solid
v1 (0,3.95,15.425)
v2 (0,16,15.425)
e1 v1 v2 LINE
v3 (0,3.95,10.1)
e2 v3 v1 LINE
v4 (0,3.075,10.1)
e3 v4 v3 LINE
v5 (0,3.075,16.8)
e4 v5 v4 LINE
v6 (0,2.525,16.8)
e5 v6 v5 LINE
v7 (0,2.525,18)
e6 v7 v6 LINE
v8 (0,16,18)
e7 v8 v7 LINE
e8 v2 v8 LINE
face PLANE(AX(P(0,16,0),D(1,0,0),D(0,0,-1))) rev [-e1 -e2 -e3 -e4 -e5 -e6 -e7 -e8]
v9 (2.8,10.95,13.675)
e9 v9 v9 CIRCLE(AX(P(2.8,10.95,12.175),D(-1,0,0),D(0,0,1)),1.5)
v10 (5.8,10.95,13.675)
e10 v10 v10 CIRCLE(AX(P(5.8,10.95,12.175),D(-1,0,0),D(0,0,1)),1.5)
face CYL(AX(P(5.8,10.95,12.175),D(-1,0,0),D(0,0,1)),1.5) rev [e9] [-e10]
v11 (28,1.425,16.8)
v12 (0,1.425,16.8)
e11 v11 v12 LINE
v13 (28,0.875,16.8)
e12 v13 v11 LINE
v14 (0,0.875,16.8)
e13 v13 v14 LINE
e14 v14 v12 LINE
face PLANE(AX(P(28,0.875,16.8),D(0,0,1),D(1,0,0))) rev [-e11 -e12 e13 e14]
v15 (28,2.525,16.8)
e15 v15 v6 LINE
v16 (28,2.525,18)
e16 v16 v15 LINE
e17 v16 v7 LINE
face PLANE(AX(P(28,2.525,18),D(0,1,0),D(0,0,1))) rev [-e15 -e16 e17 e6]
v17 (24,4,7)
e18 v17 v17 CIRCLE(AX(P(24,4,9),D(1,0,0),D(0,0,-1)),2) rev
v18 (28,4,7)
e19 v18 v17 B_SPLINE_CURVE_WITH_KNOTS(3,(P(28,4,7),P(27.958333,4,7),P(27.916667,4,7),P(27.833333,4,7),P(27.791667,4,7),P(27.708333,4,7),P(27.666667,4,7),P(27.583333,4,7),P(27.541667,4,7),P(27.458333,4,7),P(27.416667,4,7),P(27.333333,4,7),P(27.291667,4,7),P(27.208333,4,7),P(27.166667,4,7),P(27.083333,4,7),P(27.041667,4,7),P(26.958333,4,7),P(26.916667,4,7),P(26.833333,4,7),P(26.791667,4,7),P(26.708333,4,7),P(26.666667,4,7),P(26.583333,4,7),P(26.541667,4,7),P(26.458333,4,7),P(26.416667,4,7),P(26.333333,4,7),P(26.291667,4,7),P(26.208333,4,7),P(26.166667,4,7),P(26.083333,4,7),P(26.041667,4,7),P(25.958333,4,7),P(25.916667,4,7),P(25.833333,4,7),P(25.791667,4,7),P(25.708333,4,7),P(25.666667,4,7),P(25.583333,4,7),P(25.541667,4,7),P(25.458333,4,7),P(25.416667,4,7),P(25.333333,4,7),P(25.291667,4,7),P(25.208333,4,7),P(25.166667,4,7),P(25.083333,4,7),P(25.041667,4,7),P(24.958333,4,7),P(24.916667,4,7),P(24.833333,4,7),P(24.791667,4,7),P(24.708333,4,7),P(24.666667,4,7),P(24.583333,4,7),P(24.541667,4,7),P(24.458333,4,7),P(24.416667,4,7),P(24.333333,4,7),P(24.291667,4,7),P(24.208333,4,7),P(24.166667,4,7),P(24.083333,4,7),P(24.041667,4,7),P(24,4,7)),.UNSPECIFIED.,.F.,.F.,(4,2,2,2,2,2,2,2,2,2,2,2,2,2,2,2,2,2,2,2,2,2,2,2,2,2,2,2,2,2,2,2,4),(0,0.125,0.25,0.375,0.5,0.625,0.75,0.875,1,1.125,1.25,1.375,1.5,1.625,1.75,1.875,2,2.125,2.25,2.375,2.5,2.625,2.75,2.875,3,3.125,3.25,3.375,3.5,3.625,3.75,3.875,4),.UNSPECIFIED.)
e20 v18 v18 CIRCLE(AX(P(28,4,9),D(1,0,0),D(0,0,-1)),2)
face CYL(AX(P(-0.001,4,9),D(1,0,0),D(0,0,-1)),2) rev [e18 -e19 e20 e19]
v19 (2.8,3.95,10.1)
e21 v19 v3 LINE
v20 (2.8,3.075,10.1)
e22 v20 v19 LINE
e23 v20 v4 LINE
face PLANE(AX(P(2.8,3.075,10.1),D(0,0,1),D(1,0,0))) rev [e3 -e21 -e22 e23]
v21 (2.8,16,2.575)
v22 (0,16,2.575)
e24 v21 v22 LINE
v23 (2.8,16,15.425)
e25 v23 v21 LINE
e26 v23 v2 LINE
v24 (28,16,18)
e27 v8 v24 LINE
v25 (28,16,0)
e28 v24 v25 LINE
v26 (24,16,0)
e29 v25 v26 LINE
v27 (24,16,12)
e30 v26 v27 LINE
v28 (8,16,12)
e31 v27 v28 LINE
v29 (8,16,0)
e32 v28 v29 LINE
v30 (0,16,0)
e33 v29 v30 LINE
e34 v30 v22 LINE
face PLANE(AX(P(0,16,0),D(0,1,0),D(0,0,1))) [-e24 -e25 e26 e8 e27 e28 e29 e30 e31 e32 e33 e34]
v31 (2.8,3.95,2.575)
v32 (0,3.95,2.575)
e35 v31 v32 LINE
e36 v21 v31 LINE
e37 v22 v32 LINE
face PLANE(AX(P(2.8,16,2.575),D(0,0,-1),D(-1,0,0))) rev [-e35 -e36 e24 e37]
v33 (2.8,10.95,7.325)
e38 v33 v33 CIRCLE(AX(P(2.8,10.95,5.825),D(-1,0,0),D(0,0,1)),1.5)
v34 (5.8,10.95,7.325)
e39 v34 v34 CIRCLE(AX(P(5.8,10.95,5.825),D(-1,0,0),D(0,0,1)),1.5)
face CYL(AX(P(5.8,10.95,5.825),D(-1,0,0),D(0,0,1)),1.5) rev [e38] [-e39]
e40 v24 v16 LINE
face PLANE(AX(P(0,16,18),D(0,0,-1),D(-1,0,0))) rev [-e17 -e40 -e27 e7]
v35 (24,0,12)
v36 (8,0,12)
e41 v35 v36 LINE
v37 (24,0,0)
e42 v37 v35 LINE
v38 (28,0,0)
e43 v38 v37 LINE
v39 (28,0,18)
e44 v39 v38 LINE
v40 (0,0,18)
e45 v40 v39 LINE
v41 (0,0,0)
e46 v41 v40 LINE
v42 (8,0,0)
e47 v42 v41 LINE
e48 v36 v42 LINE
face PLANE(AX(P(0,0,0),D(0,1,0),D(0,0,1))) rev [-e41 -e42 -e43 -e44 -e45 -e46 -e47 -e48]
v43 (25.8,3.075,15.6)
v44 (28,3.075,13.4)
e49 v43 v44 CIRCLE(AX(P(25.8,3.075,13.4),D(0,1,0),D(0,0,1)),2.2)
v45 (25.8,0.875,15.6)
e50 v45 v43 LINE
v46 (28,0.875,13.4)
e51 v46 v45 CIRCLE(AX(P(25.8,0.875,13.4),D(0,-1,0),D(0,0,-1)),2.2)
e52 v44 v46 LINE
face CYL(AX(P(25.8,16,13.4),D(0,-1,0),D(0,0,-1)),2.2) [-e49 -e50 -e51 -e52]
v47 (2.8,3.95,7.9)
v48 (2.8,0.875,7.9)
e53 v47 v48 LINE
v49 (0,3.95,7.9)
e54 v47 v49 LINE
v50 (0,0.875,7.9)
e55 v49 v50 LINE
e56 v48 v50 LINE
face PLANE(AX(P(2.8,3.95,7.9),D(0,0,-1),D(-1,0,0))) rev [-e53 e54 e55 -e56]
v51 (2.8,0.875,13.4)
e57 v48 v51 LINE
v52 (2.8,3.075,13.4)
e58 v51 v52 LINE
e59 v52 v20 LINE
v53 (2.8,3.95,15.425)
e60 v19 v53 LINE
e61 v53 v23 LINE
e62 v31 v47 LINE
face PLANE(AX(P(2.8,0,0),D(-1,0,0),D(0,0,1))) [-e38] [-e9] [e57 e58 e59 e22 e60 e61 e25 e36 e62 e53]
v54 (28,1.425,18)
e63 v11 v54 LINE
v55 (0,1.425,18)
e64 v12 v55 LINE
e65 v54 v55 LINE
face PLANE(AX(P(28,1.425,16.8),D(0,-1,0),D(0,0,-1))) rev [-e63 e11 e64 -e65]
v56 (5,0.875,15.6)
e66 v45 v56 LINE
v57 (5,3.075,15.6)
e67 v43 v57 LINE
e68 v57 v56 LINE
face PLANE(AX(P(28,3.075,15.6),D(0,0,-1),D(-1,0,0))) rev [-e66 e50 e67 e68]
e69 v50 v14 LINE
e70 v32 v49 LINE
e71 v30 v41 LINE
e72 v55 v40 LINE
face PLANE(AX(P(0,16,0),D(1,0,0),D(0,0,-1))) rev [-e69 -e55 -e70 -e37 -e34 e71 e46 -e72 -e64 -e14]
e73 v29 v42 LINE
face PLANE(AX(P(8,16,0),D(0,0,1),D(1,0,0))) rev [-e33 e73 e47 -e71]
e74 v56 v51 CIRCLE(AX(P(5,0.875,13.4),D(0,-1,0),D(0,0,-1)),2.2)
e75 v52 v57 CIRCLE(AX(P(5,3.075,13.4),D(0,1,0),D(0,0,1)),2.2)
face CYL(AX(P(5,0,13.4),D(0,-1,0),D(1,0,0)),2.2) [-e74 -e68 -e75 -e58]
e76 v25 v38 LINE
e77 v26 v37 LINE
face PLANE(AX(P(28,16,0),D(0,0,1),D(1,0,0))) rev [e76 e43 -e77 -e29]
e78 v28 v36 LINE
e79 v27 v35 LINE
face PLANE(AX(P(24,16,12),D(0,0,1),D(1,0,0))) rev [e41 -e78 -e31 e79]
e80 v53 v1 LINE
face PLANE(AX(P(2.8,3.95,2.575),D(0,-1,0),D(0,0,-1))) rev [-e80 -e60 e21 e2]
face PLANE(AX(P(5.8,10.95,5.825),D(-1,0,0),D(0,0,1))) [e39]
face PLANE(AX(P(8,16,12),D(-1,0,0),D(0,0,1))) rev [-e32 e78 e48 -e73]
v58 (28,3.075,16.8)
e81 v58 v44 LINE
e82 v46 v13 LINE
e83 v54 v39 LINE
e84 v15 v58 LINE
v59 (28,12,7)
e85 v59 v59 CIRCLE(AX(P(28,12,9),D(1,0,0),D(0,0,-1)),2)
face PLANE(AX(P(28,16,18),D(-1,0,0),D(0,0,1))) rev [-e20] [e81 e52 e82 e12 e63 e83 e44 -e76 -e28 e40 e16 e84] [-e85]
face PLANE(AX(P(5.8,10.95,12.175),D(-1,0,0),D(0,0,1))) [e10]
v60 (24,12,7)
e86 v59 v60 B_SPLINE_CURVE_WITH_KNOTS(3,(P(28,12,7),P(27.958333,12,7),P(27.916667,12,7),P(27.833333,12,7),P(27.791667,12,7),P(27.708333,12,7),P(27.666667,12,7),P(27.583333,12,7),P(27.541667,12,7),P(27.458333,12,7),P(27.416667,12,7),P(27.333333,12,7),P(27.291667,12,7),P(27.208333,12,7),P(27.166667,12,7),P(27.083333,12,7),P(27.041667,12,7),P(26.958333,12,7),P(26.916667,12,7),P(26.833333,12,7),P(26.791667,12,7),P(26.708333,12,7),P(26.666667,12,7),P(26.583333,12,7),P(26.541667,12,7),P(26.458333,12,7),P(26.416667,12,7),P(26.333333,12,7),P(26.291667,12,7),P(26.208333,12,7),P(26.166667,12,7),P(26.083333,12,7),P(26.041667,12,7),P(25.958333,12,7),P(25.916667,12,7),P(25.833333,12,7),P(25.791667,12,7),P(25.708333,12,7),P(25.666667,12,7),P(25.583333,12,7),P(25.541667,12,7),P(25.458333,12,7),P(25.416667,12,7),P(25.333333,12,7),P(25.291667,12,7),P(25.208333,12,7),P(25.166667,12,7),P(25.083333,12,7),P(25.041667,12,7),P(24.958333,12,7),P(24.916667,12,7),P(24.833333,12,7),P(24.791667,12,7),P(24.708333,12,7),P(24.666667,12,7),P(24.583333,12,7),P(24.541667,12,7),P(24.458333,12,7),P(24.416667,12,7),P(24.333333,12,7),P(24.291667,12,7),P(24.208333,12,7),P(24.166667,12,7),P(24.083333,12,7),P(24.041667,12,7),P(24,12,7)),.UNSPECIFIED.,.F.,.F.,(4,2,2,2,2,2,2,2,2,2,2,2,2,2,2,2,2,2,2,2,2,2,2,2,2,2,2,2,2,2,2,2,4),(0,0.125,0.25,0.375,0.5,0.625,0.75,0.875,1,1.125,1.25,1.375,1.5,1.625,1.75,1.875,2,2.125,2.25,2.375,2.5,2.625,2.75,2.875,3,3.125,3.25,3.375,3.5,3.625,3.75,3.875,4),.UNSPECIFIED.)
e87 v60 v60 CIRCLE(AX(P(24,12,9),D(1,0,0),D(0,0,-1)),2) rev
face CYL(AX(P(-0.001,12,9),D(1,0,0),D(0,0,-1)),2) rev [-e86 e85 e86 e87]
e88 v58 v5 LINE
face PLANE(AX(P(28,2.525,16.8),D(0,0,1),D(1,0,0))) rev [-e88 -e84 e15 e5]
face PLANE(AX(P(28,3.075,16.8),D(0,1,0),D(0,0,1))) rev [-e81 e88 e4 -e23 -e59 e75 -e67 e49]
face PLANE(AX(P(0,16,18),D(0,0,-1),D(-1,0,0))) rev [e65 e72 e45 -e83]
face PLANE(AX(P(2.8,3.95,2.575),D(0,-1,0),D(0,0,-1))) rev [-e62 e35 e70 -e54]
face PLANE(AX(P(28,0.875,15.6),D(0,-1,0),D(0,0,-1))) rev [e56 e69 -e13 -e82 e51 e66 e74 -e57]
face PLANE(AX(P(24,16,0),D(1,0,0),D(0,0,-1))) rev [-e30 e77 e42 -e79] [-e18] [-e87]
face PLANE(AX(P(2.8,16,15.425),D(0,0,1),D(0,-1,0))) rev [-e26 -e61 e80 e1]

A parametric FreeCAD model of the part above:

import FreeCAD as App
import Part
import Sketcher


def edges_at(feature, points):
    """Names of the edges that pass closest to the given points."""
    edges = feature.Shape.Edges
    near = lambda p: min(range(len(edges)), key=lambda i: edges[i].distToShape(Part.Vertex(*p))[0])
    return sorted({f"Edge{near(p) + 1}" for p in points})

doc = App.newDocument("Part")
body = doc.addObject("PartDesign::Body", "Body")

sketch1 = doc.addObject("Sketcher::SketchObject", "Sketch")
body.addObject(sketch1)
sketch1.AttachmentSupport = (doc.XZ_Plane, [""])
sketch1.MapMode = "FlatFace"
sketch1.addGeometry([
    Part.LineSegment(App.Vector(0, 0, 0), App.Vector(0, 18, 0)),
    Part.LineSegment(App.Vector(0, 18, 0), App.Vector(28, 18, 0)),
    Part.LineSegment(App.Vector(28, 18, 0), App.Vector(28, 0, 0)),
    Part.LineSegment(App.Vector(28, 0, 0), App.Vector(24, 0, 0)),
    Part.LineSegment(App.Vector(24, 0, 0), App.Vector(24, 12, 0)),
    Part.LineSegment(App.Vector(24, 12, 0), App.Vector(8, 12, 0)),
    Part.LineSegment(App.Vector(8, 12, 0), App.Vector(8, 0, 0)),
    Part.LineSegment(App.Vector(8, 0, 0), App.Vector(0, 0, 0)),
], False)
sketch1.addConstraint([
    Sketcher.Constraint("Coincident", 0, 2, 1, 1),
    Sketcher.Constraint("Coincident", 1, 2, 2, 1),
    Sketcher.Constraint("Coincident", 2, 2, 3, 1),
    Sketcher.Constraint("Coincident", 3, 2, 4, 1),
    Sketcher.Constraint("Coincident", 4, 2, 5, 1),
    Sketcher.Constraint("Coincident", 5, 2, 6, 1),
    Sketcher.Constraint("Coincident", 6, 2, 7, 1),
    Sketcher.Constraint("Coincident", 7, 2, 0, 1),
    Sketcher.Constraint("Vertical", 0),
    Sketcher.Constraint("Horizontal", 1),
    Sketcher.Constraint("Vertical", 2),
    Sketcher.Constraint("Horizontal", 3),
    Sketcher.Constraint("Vertical", 4),
    Sketcher.Constraint("Horizontal", 5),
    Sketcher.Constraint("Vertical", 6),
    Sketcher.Constraint("Horizontal", 7),
    Sketcher.Constraint("Coincident", 7, 2, -1, 1),
    Sketcher.Constraint("PointOnObject", 2, 2, -1),
    Sketcher.Constraint("DistanceX", 1, 1, 1, 2, 28.0),
    Sketcher.Constraint("DistanceX", 3, 2, 3, 1, 4.0),
    Sketcher.Constraint("DistanceX", 5, 2, 5, 1, 16.0),
    Sketcher.Constraint("DistanceY", 0, 1, 0, 2, 18.0),
    Sketcher.Constraint("DistanceY", 4, 1, 4, 2, 12.0),
])
pad1 = doc.addObject("PartDesign::Pad", "Pad")
body.addObject(pad1)
pad1.Profile = sketch1
pad1.Length = 16
pad1.Reversed = True

sketch2 = doc.addObject("Sketcher::SketchObject", "Sketch001")
body.addObject(sketch2)
sketch2.AttachmentSupport = (doc.YZ_Plane, [""])
sketch2.MapMode = "FlatFace"
sketch2.addGeometry([
    Part.LineSegment(App.Vector(16, 3, 0), App.Vector(4, 3, 0)),
    Part.LineSegment(App.Vector(4, 3, 0), App.Vector(4, 15, 0)),
    Part.LineSegment(App.Vector(4, 15, 0), App.Vector(16, 15, 0)),
    Part.LineSegment(App.Vector(16, 15, 0), App.Vector(16, 3, 0)),
], False)
sketch2.addConstraint([
    Sketcher.Constraint("Coincident", 0, 2, 1, 1),
    Sketcher.Constraint("Coincident", 1, 2, 2, 1),
    Sketcher.Constraint("Coincident", 2, 2, 3, 1),
    Sketcher.Constraint("Coincident", 3, 2, 0, 1),
    Sketcher.Constraint("Horizontal", 0),
    Sketcher.Constraint("Vertical", 1),
    Sketcher.Constraint("Horizontal", 2),
    Sketcher.Constraint("Vertical", 3),
    Sketcher.Constraint("DistanceX", -1, 1, 2, 2, 16.0),
    Sketcher.Constraint("DistanceX", 0, 2, 0, 1, 12.05),
    Sketcher.Constraint("DistanceY", 1, 1, 1, 2, 12.85),
    Sketcher.Constraint("DistanceY", -1, 1, 0, 2, 2.575),
])
pocket1 = doc.addObject("PartDesign::Pocket", "Pocket")
body.addObject(pocket1)
pocket1.Profile = sketch2
pocket1.Length = 2.8
pocket1.Reversed = True

sketch3 = doc.addObject("Sketcher::SketchObject", "Sketch002")
body.addObject(sketch3)
sketch3.AttachmentSupport = (doc.YZ_Plane, [""])
sketch3.MapMode = "FlatFace"
sketch3.AttachmentOffset = App.Placement(App.Vector(0, 0, 2.8), App.Rotation())
sketch3.addGeometry([
    Part.Circle(App.Vector(10.9, 5.8, 0), App.Vector(0, 0, 1), 1.5),
    Part.Circle(App.Vector(10.9, 12.2, 0), App.Vector(0, 0, 1), 1.5),
], False)
sketch3.addConstraint([
    Sketcher.Constraint("Equal", 0, 1),
    Sketcher.Constraint("Vertical", 0, 3, 1, 3),
    Sketcher.Constraint("Diameter", 0, 3.0),
    Sketcher.Constraint("DistanceX", -1, 1, 0, 3, 10.95),
    Sketcher.Constraint("DistanceY", 0, 3, 1, 3, 6.35),
    Sketcher.Constraint("DistanceY", -1, 1, 0, 3, 5.825),
])
pocket2 = doc.addObject("PartDesign::Pocket", "Pocket001")
body.addObject(pocket2)
pocket2.Profile = sketch3
pocket2.Length = 3
pocket2.Reversed = True

sketch4 = doc.addObject("Sketcher::SketchObject", "Sketch003")
body.addObject(sketch4)
sketch4.AttachmentSupport = (doc.YZ_Plane, [""])
sketch4.MapMode = "FlatFace"
sketch4.AttachmentOffset = App.Placement(App.Vector(0, 0, 28), App.Rotation())
sketch4.addGeometry(Part.Circle(App.Vector(12, 9, 0), App.Vector(0, 0, 1), 2), False)
sketch4.addConstraint([
    Sketcher.Constraint("Diameter", 0, 4.0),
    Sketcher.Constraint("DistanceX", -1, 1, 0, 3, 12.0),
    Sketcher.Constraint("DistanceY", -1, 1, 0, 3, 9.0),
])
pocket3 = doc.addObject("PartDesign::Pocket", "Pocket002")
body.addObject(pocket3)
pocket3.Profile = sketch4
pocket3.Type = "UpToFirst"

sketch5 = doc.addObject("Sketcher::SketchObject", "Sketch004")
body.addObject(sketch5)
sketch5.AttachmentSupport = (doc.YZ_Plane, [""])
sketch5.MapMode = "FlatFace"
sketch5.AttachmentOffset = App.Placement(App.Vector(0, 0, 28), App.Rotation())
sketch5.addGeometry(Part.Circle(App.Vector(4, 9, 0), App.Vector(0, 0, 1), 2), False)
sketch5.addConstraint([
    Sketcher.Constraint("Diameter", 0, 4.0),
    Sketcher.Constraint("DistanceX", -1, 1, 0, 3, 4.0),
    Sketcher.Constraint("DistanceY", -1, 1, 0, 3, 9.0),
])
pocket4 = doc.addObject("PartDesign::Pocket", "Pocket003")
body.addObject(pocket4)
pocket4.Profile = sketch5
pocket4.Type = "UpToFirst"

sketch6 = doc.addObject("Sketcher::SketchObject", "Sketch005")
body.addObject(sketch6)
sketch6.AttachmentSupport = (doc.YZ_Plane, [""])
sketch6.MapMode = "FlatFace"
sketch6.addGeometry([
    Part.LineSegment(App.Vector(2.5, 18, 0), App.Vector(2.5, 16.8, 0)),
    Part.LineSegment(App.Vector(2.5, 16.8, 0), App.Vector(3.1, 16.8, 0)),
    Part.LineSegment(App.Vector(3.1, 16.8, 0), App.Vector(3.1, 15.6, 0)),
    Part.LineSegment(App.Vector(3.1, 15.6, 0), App.Vector(0.9, 15.6, 0)),
    Part.LineSegment(App.Vector(0.9, 15.6, 0), App.Vector(0.9, 16.8, 0)),
    Part.LineSegment(App.Vector(0.9, 16.8, 0), App.Vector(1.4, 16.8, 0)),
    Part.LineSegment(App.Vector(1.4, 16.8, 0), App.Vector(1.4, 18, 0)),
    Part.LineSegment(App.Vector(1.4, 18, 0), App.Vector(2.5, 18, 0)),
], False)
sketch6.addConstraint([
    Sketcher.Constraint("Coincident", 0, 2, 1, 1),
    Sketcher.Constraint("Coincident", 1, 2, 2, 1),
    Sketcher.Constraint("Coincident", 2, 2, 3, 1),
    Sketcher.Constraint("Coincident", 3, 2, 4, 1),
    Sketcher.Constraint("Coincident", 4, 2, 5, 1),
    Sketcher.Constraint("Coincident", 5, 2, 6, 1),
    Sketcher.Constraint("Coincident", 6, 2, 7, 1),
    Sketcher.Constraint("Coincident", 7, 2, 0, 1),
    Sketcher.Constraint("Vertical", 0),
    Sketcher.Constraint("Horizontal", 1),
    Sketcher.Constraint("Vertical", 2),
    Sketcher.Constraint("Horizontal", 3),
    Sketcher.Constraint("Vertical", 4),
    Sketcher.Constraint("Horizontal", 5),
    Sketcher.Constraint("Vertical", 6),
    Sketcher.Constraint("Horizontal", 7),
    Sketcher.Constraint("Horizontal", 1, 2, 4, 2),
    Sketcher.Constraint("Equal", 1, 5),
    Sketcher.Constraint("Equal", 0, 2),
    Sketcher.Constraint("DistanceX", 3, 2, 3, 1, 2.2),
    Sketcher.Constraint("DistanceX", 7, 1, 7, 2, 1.1),
    Sketcher.Constraint("DistanceY", 0, 2, 0, 1, 1.2),
    Sketcher.Constraint("DistanceY", -1, 1, 6, 2, 18.0),
    Sketcher.Constraint("DistanceX", -1, 1, 0, 2, 2.525),
])
pocket5 = doc.addObject("PartDesign::Pocket", "Pocket004")
body.addObject(pocket5)
pocket5.Profile = sketch6
pocket5.Type = "ThroughAll"
pocket5.Reversed = True

sketch7 = doc.addObject("Sketcher::SketchObject", "Sketch006")
body.addObject(sketch7)
sketch7.AttachmentSupport = (doc.YZ_Plane, [""])
sketch7.MapMode = "FlatFace"
sketch7.addGeometry([
    Part.LineSegment(App.Vector(4, 7.9, 0), App.Vector(0.9, 7.9, 0)),
    Part.LineSegment(App.Vector(0.9, 7.9, 0), App.Vector(0.9, 15.6, 0)),
    Part.LineSegment(App.Vector(0.9, 15.6, 0), App.Vector(3.1, 15.6, 0)),
    Part.LineSegment(App.Vector(3.1, 15.6, 0), App.Vector(3.1, 10.1, 0)),
    Part.LineSegment(App.Vector(3.1, 10.1, 0), App.Vector(4, 10.1, 0)),
    Part.LineSegment(App.Vector(4, 10.1, 0), App.Vector(4, 7.9, 0)),
], False)
sketch7.addConstraint([
    Sketcher.Constraint("Coincident", 0, 2, 1, 1),
    Sketcher.Constraint("Coincident", 1, 2, 2, 1),
    Sketcher.Constraint("Coincident", 2, 2, 3, 1),
    Sketcher.Constraint("Coincident", 3, 2, 4, 1),
    Sketcher.Constraint("Coincident", 4, 2, 5, 1),
    Sketcher.Constraint("Coincident", 5, 2, 0, 1),
    Sketcher.Constraint("Horizontal", 0),
    Sketcher.Constraint("Vertical", 1),
    Sketcher.Constraint("Horizontal", 2),
    Sketcher.Constraint("Vertical", 3),
    Sketcher.Constraint("Horizontal", 4),
    Sketcher.Constraint("Vertical", 5),
    Sketcher.Constraint("Equal", 2, 5),
    Sketcher.Constraint("DistanceX", 2, 1, 2, 2, 2.2),
    Sketcher.Constraint("DistanceY", 1, 1, 1, 2, 7.7),
    Sketcher.Constraint("DistanceY", -1, 1, 0, 2, 7.9),
    Sketcher.Constraint("DistanceX", 0, 2, 0, 1, 3.075),
    Sketcher.Constraint("DistanceX", -1, 1, 4, 2, 3.95),
])
pocket6 = doc.addObject("PartDesign::Pocket", "Pocket005")
body.addObject(pocket6)
pocket6.Profile = sketch7
pocket6.Length = 2.8
pocket6.Reversed = True
doc.recompute()

fillet = doc.addObject("PartDesign::Fillet", "Fillet")
body.addObject(fillet)
fillet.Base = (pocket6, edges_at(pocket6, [(2.8, 1.975, 15.6)]))
fillet.Radius = 2.2
doc.recompute()

fillet2 = doc.addObject("PartDesign::Fillet", "Fillet001")
body.addObject(fillet2)
fillet2.Base = (fillet, edges_at(fillet, [(28, 1.975, 15.6)]))
fillet2.Radius = 2.2

doc.recompute()
